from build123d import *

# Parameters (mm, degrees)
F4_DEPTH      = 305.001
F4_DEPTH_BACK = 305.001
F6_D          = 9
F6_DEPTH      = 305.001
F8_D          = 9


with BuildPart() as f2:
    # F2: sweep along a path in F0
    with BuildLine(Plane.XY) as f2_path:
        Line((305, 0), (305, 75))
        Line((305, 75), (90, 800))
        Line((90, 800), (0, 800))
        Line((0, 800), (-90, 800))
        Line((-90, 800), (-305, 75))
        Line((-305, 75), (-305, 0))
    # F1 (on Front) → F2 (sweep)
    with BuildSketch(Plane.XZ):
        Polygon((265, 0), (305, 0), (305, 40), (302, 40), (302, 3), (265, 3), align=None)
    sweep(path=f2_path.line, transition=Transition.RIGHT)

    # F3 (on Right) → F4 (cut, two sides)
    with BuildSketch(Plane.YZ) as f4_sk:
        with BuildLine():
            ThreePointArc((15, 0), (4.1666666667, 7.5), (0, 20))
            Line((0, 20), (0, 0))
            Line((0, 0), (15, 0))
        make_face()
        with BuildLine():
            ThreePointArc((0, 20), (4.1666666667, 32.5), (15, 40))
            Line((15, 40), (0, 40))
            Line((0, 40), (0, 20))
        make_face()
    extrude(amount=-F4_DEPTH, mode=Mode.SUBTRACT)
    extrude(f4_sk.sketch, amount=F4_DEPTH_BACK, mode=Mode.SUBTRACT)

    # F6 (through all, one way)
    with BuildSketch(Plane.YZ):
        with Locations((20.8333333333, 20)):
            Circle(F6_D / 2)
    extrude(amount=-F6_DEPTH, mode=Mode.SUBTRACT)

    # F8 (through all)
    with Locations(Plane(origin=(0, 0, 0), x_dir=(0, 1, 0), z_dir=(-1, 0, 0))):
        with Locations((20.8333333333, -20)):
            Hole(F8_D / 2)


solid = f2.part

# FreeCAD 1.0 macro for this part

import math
import FreeCAD as App
import Part
import Sketcher
from FreeCAD import Vector

doc = App.newDocument("Part")
body = doc.addObject("PartDesign::Body", "Body")

# Sketch on XZ plane
sketch1 = body.newObject("Sketcher::SketchObject", "Sketch")
sketch1.AttachmentSupport = (doc.getObject("XZ_Plane"), [""])
sketch1.MapMode = "FlatFace"
sketch1.addGeometry(Part.LineSegment(Vector(265, 0, 0), Vector(305, 0, 0)), False)
sketch1.addGeometry(Part.LineSegment(Vector(305, 0, 0), Vector(305, 40, 0)), False)
sketch1.addGeometry(Part.LineSegment(Vector(305, 40, 0), Vector(302, 40, 0)), False)
sketch1.addGeometry(Part.LineSegment(Vector(302, 40, 0), Vector(302, 3, 0)), False)
sketch1.addGeometry(Part.LineSegment(Vector(302, 3, 0), Vector(265, 3, 0)), False)
sketch1.addGeometry(Part.LineSegment(Vector(265, 3, 0), Vector(265, 0, 0)), False)
sketch1.addConstraint(Sketcher.Constraint("Coincident", 0, 2, 1, 1))
sketch1.addConstraint(Sketcher.Constraint("Coincident", 1, 2, 2, 1))
sketch1.addConstraint(Sketcher.Constraint("Coincident", 2, 2, 3, 1))
sketch1.addConstraint(Sketcher.Constraint("Coincident", 3, 2, 4, 1))
sketch1.addConstraint(Sketcher.Constraint("Coincident", 4, 2, 5, 1))
sketch1.addConstraint(Sketcher.Constraint("Coincident", 5, 2, 0, 1))
sketch1.addConstraint(Sketcher.Constraint("Horizontal", 0))
sketch1.addConstraint(Sketcher.Constraint("Vertical", 1))
sketch1.addConstraint(Sketcher.Constraint("Horizontal", 2))
sketch1.addConstraint(Sketcher.Constraint("Vertical", 3))
sketch1.addConstraint(Sketcher.Constraint("Horizontal", 4))
sketch1.addConstraint(Sketcher.Constraint("Vertical", 5))
sketch1.addConstraint(Sketcher.Constraint("PointOnObject", 0, 2, -1))
sketch1.addConstraint(Sketcher.Constraint("Equal", 0, 1))
sketch1.addConstraint(Sketcher.Constraint("Equal", 4, 3))
sketch1.addConstraint(Sketcher.Constraint("DistanceX", 0, 1, 0, 2, 40.0))
sketch1.addConstraint(Sketcher.Constraint("DistanceX", 2, 2, 2, 1, 3.0))
sketch1.addConstraint(Sketcher.Constraint("DistanceX", -1, 1, 0, 2, 305.0))

# Sketch on XY plane
sketch2 = body.newObject("Sketcher::SketchObject", "Sketch001")
sketch2.AttachmentSupport = (doc.getObject("XY_Plane"), [""])
sketch2.MapMode = "FlatFace"
sketch2.addGeometry(Part.LineSegment(Vector(305, 0, 0), Vector(305, 75, 0)), False)
sketch2.addGeometry(Part.LineSegment(Vector(305, 75, 0), Vector(90, 800, 0)), False)
sketch2.addGeometry(Part.LineSegment(Vector(90, 800, 0), Vector(-90, 800, 0)), False)
sketch2.addGeometry(Part.LineSegment(Vector(-90, 800, 0), Vector(-305, 75, 0)), False)
sketch2.addGeometry(Part.LineSegment(Vector(-305, 75, 0), Vector(-305, 0, 0)), False)
sketch2.addConstraint(Sketcher.Constraint("Coincident", 0, 2, 1, 1))
sketch2.addConstraint(Sketcher.Constraint("Coincident", 1, 2, 2, 1))
sketch2.addConstraint(Sketcher.Constraint("Coincident", 2, 2, 3, 1))
sketch2.addConstraint(Sketcher.Constraint("Coincident", 3, 2, 4, 1))
sketch2.addConstraint(Sketcher.Constraint("Vertical", 0))
sketch2.addConstraint(Sketcher.Constraint("Horizontal", 2))
sketch2.addConstraint(Sketcher.Constraint("Vertical", 4))
sketch2.addConstraint(Sketcher.Constraint("Symmetric", 0, 1, 4, 2, -1, 1))
sketch2.addConstraint(Sketcher.Constraint("PointOnObject", 0, 1, -1))
sketch2.addConstraint(Sketcher.Constraint("Horizontal", 0, 2, 3, 2))
sketch2.addConstraint(Sketcher.Constraint("Equal", 1, 3))
sketch2.addConstraint(Sketcher.Constraint("DistanceX", 2, 2, 2, 1, 180.0))
sketch2.addConstraint(Sketcher.Constraint("DistanceY", 0, 1, 0, 2, 75.0))
sketch2.addConstraint(Sketcher.Constraint("DistanceX", -1, 1, 0, 1, 305.0))
sketch2.addConstraint(Sketcher.Constraint("DistanceY", -1, 1, 1, 2, 800.0))
doc.recompute()

additivepipe = body.newObject("PartDesign::AdditivePipe", "AdditivePipe")
additivepipe.Profile = sketch1
additivepipe.Spine = (sketch2, ["Edge1", "Edge2", "Edge3", "Edge4", "Edge5"])
additivepipe.Transition = "Right corner"

# Sketch on YZ plane
sketch3 = body.newObject("Sketcher::SketchObject", "Sketch002")
sketch3.AttachmentSupport = (doc.getObject("YZ_Plane"), [""])
sketch3.MapMode = "FlatFace"
sketch3.addGeometry(Part.ArcOfCircle(Part.Circle(Vector(21, 20, 0), Vector(0, 0, 1), 21), math.radians(180), math.radians(254)), False)
sketch3.addGeometry(Part.LineSegment(Vector(0, 20, 0), Vector(0, 0, 0)), False)
sketch3.addGeometry(Part.LineSegment(Vector(0, 0, 0), Vector(15, 0, 0)), False)
sketch3.addGeometry(Part.ArcOfCircle(Part.Circle(Vector(21, 20, 0), Vector(0, 0, 1), 21), math.radians(106), math.radians(180)), False)
sketch3.addGeometry(Part.LineSegment(Vector(15, 40, 0), Vector(0, 40, 0)), False)
sketch3.addGeometry(Part.LineSegment(Vector(0, 40, 0), Vector(0, 20, 0)), False)
sketch3.addConstraint(Sketcher.Constraint("Tangent", 0, 1, 1, 1))
sketch3.addConstraint(Sketcher.Constraint("Coincident", 1, 2, 2, 1))
sketch3.addConstraint(Sketcher.Constraint("Coincident", 2, 2, 0, 2))
sketch3.addConstraint(Sketcher.Constraint("Coincident", 3, 1, 4, 1))
sketch3.addConstraint(Sketcher.Constraint("Coincident", 4, 2, 5, 1))
sketch3.addConstraint(Sketcher.Constraint("Tangent", 5, 2, 3, 2))
sketch3.addConstraint(Sketcher.Constraint("Vertical", 1))
sketch3.addConstraint(Sketcher.Constraint("Horizontal", 2))
sketch3.addConstraint(Sketcher.Constraint("Horizontal", 4))
sketch3.addConstraint(Sketcher.Constraint("Vertical", 5))
sketch3.addConstraint(Sketcher.Constraint("Coincident", 1, 2, -1, 1))
sketch3.addConstraint(Sketcher.Constraint("Coincident", 3, 3, 0, 3))
sketch3.addConstraint(Sketcher.Constraint("Equal", 0, 3))
sketch3.addConstraint(Sketcher.Constraint("Vertical", 2, 2, 3, 1))
sketch3.addConstraint(Sketcher.Constraint("DistanceX", 2, 1, 2, 2, 15.0))
sketch3.addConstraint(Sketcher.Constraint("DistanceY", 1, 2, 1, 1, 20.0))
pocket1 = body.newObject("PartDesign::Pocket", "Pocket")
pocket1.Profile = sketch3
pocket1.Type = "ThroughAll"
pocket1.Midplane = True

# Sketch on YZ plane
sketch4 = body.newObject("Sketcher::SketchObject", "Sketch003")
sketch4.AttachmentSupport = (doc.getObject("YZ_Plane"), [""])
sketch4.MapMode = "FlatFace"
sketch4.addGeometry(Part.Circle(Vector(20.8, 20, 0), Vector(0, 0, 1), 4.5), False)
sketch4.addConstraint(Sketcher.Constraint("Diameter", 0, 9.0))
sketch4.addConstraint(Sketcher.Constraint("DistanceY", -1, 1, 0, 3, 20.0))
sketch4.addConstraint(Sketcher.Constraint("DistanceX", -1, 1, 0, 3, 20.833333))
pocket2 = body.newObject("PartDesign::Pocket", "Pocket001")
pocket2.Profile = sketch4
pocket2.Type = "ThroughAll"

# Sketch on YZ plane
sketch5 = body.newObject("Sketcher::SketchObject", "Sketch004")
sketch5.AttachmentSupport = (doc.getObject("YZ_Plane"), [""])
sketch5.MapMode = "FlatFace"
sketch5.addGeometry(Part.Circle(Vector(20.8, 20, 0), Vector(0, 0, 1), 4.5), False)
sketch5.addConstraint(Sketcher.Constraint("Diameter", 0, 9.0))
sketch5.addConstraint(Sketcher.Constraint("DistanceY", -1, 1, 0, 3, 20.0))
sketch5.addConstraint(Sketcher.Constraint("DistanceX", -1, 1, 0, 3, 20.833333))
doc.recompute()
hole = body.newObject("PartDesign::Hole", "Hole")
hole.Profile = sketch5
hole.ThreadType = "None"
hole.Diameter = 9
hole.DepthType = "ThroughAll"
hole.Reversed = True

doc.recompute()
